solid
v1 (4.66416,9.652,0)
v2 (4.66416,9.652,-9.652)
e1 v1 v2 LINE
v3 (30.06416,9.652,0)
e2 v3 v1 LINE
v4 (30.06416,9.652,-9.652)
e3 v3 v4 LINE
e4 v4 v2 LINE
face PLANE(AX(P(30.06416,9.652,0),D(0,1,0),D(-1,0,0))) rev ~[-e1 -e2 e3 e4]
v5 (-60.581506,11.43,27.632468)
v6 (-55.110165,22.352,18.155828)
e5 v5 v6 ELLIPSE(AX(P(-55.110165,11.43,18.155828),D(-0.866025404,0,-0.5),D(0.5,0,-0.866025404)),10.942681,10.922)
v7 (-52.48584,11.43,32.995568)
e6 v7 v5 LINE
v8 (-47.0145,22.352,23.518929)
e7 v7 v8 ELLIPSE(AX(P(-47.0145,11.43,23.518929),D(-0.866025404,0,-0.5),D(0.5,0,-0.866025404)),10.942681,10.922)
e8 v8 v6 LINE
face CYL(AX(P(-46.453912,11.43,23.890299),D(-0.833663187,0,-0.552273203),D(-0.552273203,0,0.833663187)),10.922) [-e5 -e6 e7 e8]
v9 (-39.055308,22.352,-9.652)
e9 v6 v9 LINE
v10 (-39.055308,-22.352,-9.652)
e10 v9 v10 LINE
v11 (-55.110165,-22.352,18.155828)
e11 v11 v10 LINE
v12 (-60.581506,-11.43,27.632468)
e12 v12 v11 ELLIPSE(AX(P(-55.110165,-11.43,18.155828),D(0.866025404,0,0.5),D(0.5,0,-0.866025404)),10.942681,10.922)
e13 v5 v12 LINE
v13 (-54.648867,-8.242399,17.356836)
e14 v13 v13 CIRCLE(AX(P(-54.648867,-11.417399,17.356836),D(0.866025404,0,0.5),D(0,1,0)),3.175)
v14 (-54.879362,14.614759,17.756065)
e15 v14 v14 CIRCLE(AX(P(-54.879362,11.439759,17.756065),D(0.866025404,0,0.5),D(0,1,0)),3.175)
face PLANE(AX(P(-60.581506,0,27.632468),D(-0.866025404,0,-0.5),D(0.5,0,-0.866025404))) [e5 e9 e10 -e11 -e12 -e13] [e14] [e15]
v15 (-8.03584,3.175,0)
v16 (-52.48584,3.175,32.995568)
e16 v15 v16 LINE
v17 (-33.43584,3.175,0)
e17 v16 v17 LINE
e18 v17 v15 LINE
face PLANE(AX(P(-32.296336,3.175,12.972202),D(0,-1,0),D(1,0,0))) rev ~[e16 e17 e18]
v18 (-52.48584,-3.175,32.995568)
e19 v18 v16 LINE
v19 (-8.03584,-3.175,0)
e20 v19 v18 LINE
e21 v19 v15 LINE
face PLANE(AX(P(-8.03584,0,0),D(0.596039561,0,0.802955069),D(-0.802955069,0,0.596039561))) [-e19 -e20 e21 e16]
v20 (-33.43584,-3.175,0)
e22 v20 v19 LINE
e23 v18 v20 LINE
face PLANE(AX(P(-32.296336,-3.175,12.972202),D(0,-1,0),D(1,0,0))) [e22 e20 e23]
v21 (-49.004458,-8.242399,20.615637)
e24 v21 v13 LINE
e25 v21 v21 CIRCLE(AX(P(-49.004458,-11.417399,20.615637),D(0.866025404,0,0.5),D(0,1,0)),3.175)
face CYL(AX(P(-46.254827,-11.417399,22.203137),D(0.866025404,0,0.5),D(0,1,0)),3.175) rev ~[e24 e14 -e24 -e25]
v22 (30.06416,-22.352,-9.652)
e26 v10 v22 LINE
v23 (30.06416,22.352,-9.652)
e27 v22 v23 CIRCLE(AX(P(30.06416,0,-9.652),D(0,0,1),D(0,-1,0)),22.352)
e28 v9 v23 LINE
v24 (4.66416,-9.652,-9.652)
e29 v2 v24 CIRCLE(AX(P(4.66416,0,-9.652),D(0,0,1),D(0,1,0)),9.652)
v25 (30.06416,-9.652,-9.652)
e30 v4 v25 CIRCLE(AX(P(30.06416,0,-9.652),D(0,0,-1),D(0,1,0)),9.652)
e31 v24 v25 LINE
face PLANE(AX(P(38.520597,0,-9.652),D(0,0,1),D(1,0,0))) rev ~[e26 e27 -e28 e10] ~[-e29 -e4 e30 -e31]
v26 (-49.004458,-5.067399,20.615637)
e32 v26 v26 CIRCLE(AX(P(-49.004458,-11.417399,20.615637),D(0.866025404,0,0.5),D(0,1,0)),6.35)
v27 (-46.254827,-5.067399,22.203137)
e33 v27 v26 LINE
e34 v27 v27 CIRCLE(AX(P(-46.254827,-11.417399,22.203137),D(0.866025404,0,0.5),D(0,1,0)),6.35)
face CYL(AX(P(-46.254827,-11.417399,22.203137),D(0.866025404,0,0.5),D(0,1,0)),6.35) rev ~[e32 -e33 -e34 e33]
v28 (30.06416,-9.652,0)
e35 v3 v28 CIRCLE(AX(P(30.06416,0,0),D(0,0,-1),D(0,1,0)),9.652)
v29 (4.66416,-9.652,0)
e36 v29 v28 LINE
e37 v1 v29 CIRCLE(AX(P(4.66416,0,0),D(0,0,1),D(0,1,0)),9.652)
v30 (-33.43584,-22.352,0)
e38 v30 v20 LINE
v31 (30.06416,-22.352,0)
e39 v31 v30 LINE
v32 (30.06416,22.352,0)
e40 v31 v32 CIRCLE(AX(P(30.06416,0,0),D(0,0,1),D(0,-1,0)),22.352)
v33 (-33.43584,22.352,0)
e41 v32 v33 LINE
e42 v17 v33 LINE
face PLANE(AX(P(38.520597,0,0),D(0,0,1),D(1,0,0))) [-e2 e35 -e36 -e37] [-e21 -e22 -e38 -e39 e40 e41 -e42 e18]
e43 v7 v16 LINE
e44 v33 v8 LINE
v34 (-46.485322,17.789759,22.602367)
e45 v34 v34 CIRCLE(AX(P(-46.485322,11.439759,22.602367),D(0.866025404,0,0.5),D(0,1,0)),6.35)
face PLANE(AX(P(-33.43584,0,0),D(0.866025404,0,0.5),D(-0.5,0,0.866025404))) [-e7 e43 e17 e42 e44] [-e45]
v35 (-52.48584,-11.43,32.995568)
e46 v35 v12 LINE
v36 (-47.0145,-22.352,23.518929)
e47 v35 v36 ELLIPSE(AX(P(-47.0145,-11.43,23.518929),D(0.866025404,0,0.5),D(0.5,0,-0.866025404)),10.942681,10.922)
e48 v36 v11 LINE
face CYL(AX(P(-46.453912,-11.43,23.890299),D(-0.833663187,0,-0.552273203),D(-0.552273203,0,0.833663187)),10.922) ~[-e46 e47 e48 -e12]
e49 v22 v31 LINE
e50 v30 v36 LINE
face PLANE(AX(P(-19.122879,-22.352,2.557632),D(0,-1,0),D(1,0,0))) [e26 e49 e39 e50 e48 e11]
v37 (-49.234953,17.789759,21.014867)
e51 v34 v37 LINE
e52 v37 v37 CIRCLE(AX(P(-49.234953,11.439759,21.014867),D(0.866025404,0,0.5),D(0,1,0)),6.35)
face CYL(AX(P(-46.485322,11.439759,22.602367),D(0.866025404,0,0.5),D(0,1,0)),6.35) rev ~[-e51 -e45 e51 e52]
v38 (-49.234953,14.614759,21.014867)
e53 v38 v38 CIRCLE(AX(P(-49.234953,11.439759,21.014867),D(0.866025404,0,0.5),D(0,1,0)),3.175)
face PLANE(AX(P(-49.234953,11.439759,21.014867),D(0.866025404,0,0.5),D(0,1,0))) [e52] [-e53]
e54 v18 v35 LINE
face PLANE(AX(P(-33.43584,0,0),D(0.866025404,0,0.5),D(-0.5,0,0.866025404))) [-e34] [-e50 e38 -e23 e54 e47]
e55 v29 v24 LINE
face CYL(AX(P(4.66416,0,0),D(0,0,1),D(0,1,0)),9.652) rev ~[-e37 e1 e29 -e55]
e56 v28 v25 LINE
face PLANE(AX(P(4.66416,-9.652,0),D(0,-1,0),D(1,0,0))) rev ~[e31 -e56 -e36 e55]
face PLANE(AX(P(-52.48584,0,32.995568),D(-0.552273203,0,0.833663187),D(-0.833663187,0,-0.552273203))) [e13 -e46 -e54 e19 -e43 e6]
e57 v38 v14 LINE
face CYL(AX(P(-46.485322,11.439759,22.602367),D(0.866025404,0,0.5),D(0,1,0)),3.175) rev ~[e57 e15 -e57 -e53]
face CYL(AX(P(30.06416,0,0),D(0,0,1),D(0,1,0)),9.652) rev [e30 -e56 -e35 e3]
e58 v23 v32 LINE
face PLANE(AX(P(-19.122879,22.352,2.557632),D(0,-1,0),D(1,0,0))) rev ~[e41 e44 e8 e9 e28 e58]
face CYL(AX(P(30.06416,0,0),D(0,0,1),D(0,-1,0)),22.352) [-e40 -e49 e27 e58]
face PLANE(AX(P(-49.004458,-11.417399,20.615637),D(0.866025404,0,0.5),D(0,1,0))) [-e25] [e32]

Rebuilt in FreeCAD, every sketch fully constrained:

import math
import FreeCAD as App
import Part
import Sketcher
from FreeCAD import Vector
Q = App.Units.Quantity


def edges_at(feature, points):
    """Names of the edges that pass closest to the given points."""
    edges = feature.Shape.Edges
    near = lambda p: min(range(len(edges)), key=lambda i: edges[i].distToShape(Part.Vertex(*p))[0])
    return sorted({f"Edge{near(p) + 1}" for p in points})

doc = App.newDocument("Part")
body = doc.addObject("PartDesign::Body", "Body")

sketch1 = doc.addObject("Sketcher::SketchObject", "Sketch")
body.addObject(sketch1)
sketch1.AttachmentSupport = (doc.XZ_Plane, [""])
sketch1.MapMode = "FlatFace"
sketch1.addGeometry([
    Part.LineSegment(Vector(-33, 0, 0), Vector(-52, 33, 0)),
    Part.LineSegment(Vector(-52, 33, 0), Vector(-61, 28, 0)),
    Part.LineSegment(Vector(-61, 28, 0), Vector(-39, -10, 0)),
    Part.LineSegment(Vector(-39, -10, 0), Vector(30, -10, 0)),
    Part.LineSegment(Vector(30, -10, 0), Vector(30, 0, 0)),
    Part.LineSegment(Vector(30, 0, 0), Vector(-33, 0, 0)),
], False)
sketch1.addConstraint([
    Sketcher.Constraint("Coincident", 0, 2, 1, 1),
    Sketcher.Constraint("Coincident", 1, 2, 2, 1),
    Sketcher.Constraint("Coincident", 2, 2, 3, 1),
    Sketcher.Constraint("Coincident", 3, 2, 4, 1),
    Sketcher.Constraint("Coincident", 4, 2, 5, 1),
    Sketcher.Constraint("Coincident", 5, 2, 0, 1),
    Sketcher.Constraint("Horizontal", 3),
    Sketcher.Constraint("Vertical", 4),
    Sketcher.Constraint("Horizontal", 5),
    Sketcher.Constraint("PointOnObject", 4, 2, -1),
    Sketcher.Constraint("Parallel", 0, 2),
    Sketcher.Constraint("DistanceX", 5, 2, 5, 1, Q("2.5 in")),
    Sketcher.Constraint("Angle", 0, Q("120 deg")),
    Sketcher.Constraint("Distance", 0, Q("1.5 in")),
    Sketcher.Constraint("DistanceY", 4, 1, 4, 2, Q("0.38 in")),
    Sketcher.Constraint("DistanceX", 3, 1, 3, 2, 69.119468),
    Sketcher.Constraint("DistanceY", 1, 2, 0, 2, 5.3631),
    Sketcher.Constraint("DistanceX", 0, 2, -1, 1, 52.48584),
])
pad1 = doc.addObject("PartDesign::Pad", "Pad")
body.addObject(pad1)
pad1.Profile = sketch1
pad1.Length = Q("1.76 in")
pad1.Midplane = True

sketch2 = doc.addObject("Sketcher::SketchObject", "Sketch001")
body.addObject(sketch2)
sketch2.AttachmentSupport = (doc.XZ_Plane, [""])
sketch2.MapMode = "FlatFace"
sketch2.addGeometry([
    Part.LineSegment(Vector(-52, 33, 0), Vector(-33, 0, 0)),
    Part.LineSegment(Vector(-33, 0, 0), Vector(-8, 0, 0)),
    Part.LineSegment(Vector(-8, 0, 0), Vector(-52, 33, 0)),
], False)
sketch2.addConstraint([
    Sketcher.Constraint("Coincident", 0, 2, 1, 1),
    Sketcher.Constraint("Coincident", 1, 2, 2, 1),
    Sketcher.Constraint("Coincident", 2, 2, 0, 1),
    Sketcher.Constraint("Horizontal", 1),
    Sketcher.Constraint("PointOnObject", 0, 2, -1),
    Sketcher.Constraint("DistanceX", 1, 1, 1, 2, Q("1 in")),
    Sketcher.Constraint("Angle", 0, Q("-60 deg")),
    Sketcher.Constraint("Distance", 0, Q("1.5 in")),
    Sketcher.Constraint("DistanceX", 0, 2, -1, 1, 33.43584),
])
pad2 = doc.addObject("PartDesign::Pad", "Pad001")
body.addObject(pad2)
pad2.Profile = sketch2
pad2.Length = Q("0.25 in")
pad2.Midplane = True
doc.recompute()

fillet = doc.addObject("PartDesign::Fillet", "Fillet")
body.addObject(fillet)
fillet.Base = (pad2, edges_at(pad2, [(-56.534, -22.352, 30.314), (-56.534, 22.352, 30.314)]))
fillet.Radius = Q("0.43 in")

sketch3 = doc.addObject("Sketcher::SketchObject", "Sketch002")
body.addObject(sketch3)
sketch3.AttachmentSupport = (doc.XY_Plane, [""])
sketch3.MapMode = "FlatFace"
sketch3.addGeometry([
    Part.LineSegment(Vector(30, -10, 0), Vector(30, -22, 0)),
    Part.ArcOfCircle(Part.Circle(Vector(30, 0, 0), Vector(0, 0, 1), 22), math.radians(-90), math.radians(90)),
    Part.LineSegment(Vector(30, 22, 0), Vector(30, 10, 0)),
    Part.ArcOfCircle(Part.Circle(Vector(30, 0, 0), Vector(0, 0, 1), 10), math.radians(-90), math.radians(90)),
], False)
sketch3.addConstraint([
    Sketcher.Constraint("Coincident", 0, 2, 1, 1),
    Sketcher.Constraint("Coincident", 1, 2, 2, 1),
    Sketcher.Constraint("Coincident", 2, 2, 3, 2),
    Sketcher.Constraint("Coincident", 3, 1, 0, 1),
    Sketcher.Constraint("Vertical", 0),
    Sketcher.Constraint("Vertical", 2),
    Sketcher.Constraint("Coincident", 3, 3, 1, 3),
    Sketcher.Constraint("Symmetric", 0, 2, 1, 2, -1),
    Sketcher.Constraint("Vertical", 3, 3, 0, 2),
    Sketcher.Constraint("Radius", 1, Q("0.88 in")),
    Sketcher.Constraint("Radius", 3, Q("0.38 in")),
    Sketcher.Constraint("DistanceX", -1, 1, 1, 3, 30.06416),
])
pad3 = doc.addObject("PartDesign::Pad", "Pad002")
body.addObject(pad3)
pad3.Profile = sketch3
pad3.Length = Q("0.38 in")
pad3.Reversed = True

sketch4 = doc.addObject("Sketcher::SketchObject", "Sketch003")
body.addObject(sketch4)
sketch4.AttachmentSupport = (doc.XY_Plane, [""])
sketch4.MapMode = "FlatFace"
sketch4.addGeometry([
    Part.LineSegment(Vector(5, -10, 0), Vector(30, -10, 0)),
    Part.LineSegment(Vector(30, -10, 0), Vector(30, 10, 0)),
    Part.LineSegment(Vector(30, 10, 0), Vector(5, 10, 0)),
    Part.ArcOfCircle(Part.Circle(Vector(5, 0, 0), Vector(0, 0, 1), 10), math.radians(90), math.radians(270)),
], False)
sketch4.addConstraint([
    Sketcher.Constraint("Coincident", 0, 2, 1, 1),
    Sketcher.Constraint("Coincident", 1, 2, 2, 1),
    Sketcher.Constraint("Tangent", 2, 2, 3, 1),
    Sketcher.Constraint("Tangent", 3, 2, 0, 1),
    Sketcher.Constraint("Horizontal", 0),
    Sketcher.Constraint("Vertical", 1),
    Sketcher.Constraint("Horizontal", 2),
    Sketcher.Constraint("PointOnObject", 3, 3, -1),
    Sketcher.Constraint("DistanceX", 0, 1, 0, 2, Q("1 in")),
    Sketcher.Constraint("Radius", 3, Q("0.38 in")),
    Sketcher.Constraint("DistanceX", -1, 1, 3, 3, 4.66416),
])
pocket1 = doc.addObject("PartDesign::Pocket", "Pocket")
body.addObject(pocket1)
pocket1.Profile = sketch4
pocket1.Length = Q("0.38 in")

sketch5 = doc.addObject("Sketcher::SketchObject", "Sketch004")
body.addObject(sketch5)
sketch5.Placement = App.Placement(Vector(-25.07688, 0, -14.478143), App.Rotation(Vector(0, 1, 0), Vector(-0.5, 0, 0.866025404), Vector(0.866025404, 0, 0.5), "ZXY"))
sketch5.addGeometry([
    Part.Circle(Vector(-11.4, 42.4, 0), Vector(0, 0, 1), 3.2),
    Part.Circle(Vector(11.4, 42.8, 0), Vector(0, 0, 1), 3.2),
], False)
sketch5.addConstraint([
    Sketcher.Constraint("Equal", 0, 1),
    Sketcher.Constraint("Diameter", 0, Q("0.25 in")),
    Sketcher.Constraint("DistanceX", 0, 3, -1, 1, 11.417399),
    Sketcher.Constraint("DistanceX", -1, 1, 1, 3, 11.439759),
    Sketcher.Constraint("DistanceY", 0, 3, 1, 3, 0.46099),
    Sketcher.Constraint("DistanceY", -1, 1, 0, 3, 42.355895),
])
pocket2 = doc.addObject("PartDesign::Pocket", "Pocket001")
body.addObject(pocket2)
pocket2.Profile = sketch5
pocket2.Length = Q("0.88 in")

sketch6 = doc.addObject("Sketcher::SketchObject", "Sketch005")
body.addObject(sketch6)
sketch6.Placement = App.Placement(Vector(-25.07688, 0, -14.478143), App.Rotation(Vector(0, 1, 0), Vector(-0.5, 0, 0.866025404), Vector(0.866025404, 0, 0.5), "ZXY"))
sketch6.addGeometry([
    Part.Circle(Vector(-11.4, 42.4, 0), Vector(0, 0, 1), 6.3),
    Part.Circle(Vector(-11.4, 42.4, 0), Vector(0, 0, 1), 3.2),
    Part.Circle(Vector(11.4, 42.8, 0), Vector(0, 0, 1), 6.3),
    Part.Circle(Vector(11.4, 42.8, 0), Vector(0, 0, 1), 3.2),
], False)
sketch6.addConstraint([
    Sketcher.Constraint("Coincident", 1, 3, 0, 3),
    Sketcher.Constraint("Coincident", 3, 3, 2, 3),
    Sketcher.Constraint("Equal", 0, 2),
    Sketcher.Constraint("Equal", 1, 3),
    Sketcher.Constraint("Diameter", 0, Q("0.5 in")),
    Sketcher.Constraint("Diameter", 1, Q("0.25 in")),
    Sketcher.Constraint("DistanceX", 0, 3, -1, 1, 11.417399),
    Sketcher.Constraint("DistanceX", -1, 1, 2, 3, 11.439759),
    Sketcher.Constraint("DistanceY", 0, 3, 2, 3, 0.46099),
    Sketcher.Constraint("DistanceY", -1, 1, 0, 3, 42.355895),
])
pocket3 = doc.addObject("PartDesign::Pocket", "Pocket002")
body.addObject(pocket3)
pocket3.Profile = sketch6
pocket3.Length = Q("0.125 in")

doc.recompute()
